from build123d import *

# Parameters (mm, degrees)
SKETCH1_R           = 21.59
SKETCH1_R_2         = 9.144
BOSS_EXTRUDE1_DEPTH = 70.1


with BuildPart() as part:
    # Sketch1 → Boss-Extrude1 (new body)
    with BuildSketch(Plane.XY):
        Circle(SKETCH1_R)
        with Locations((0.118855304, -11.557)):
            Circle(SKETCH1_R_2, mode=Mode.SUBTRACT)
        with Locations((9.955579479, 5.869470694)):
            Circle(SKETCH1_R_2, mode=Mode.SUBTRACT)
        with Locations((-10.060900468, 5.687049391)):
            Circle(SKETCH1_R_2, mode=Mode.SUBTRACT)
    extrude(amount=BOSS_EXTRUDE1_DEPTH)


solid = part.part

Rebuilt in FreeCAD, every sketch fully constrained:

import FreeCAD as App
import Part
import Sketcher
Q = App.Units.Quantity

doc = App.newDocument("Part")
body = doc.addObject("PartDesign::Body", "Body")

# Sketch on XY plane
sketch1 = body.newObject("Sketcher::SketchObject", "Sketch")
sketch1.AttachmentSupport = (doc.getObject("XY_Plane"), [""])
sketch1.MapMode = "FlatFace"
sketch1.addGeometry([
    Part.Circle(App.Vector(0, 0, 0), App.Vector(0, 0, 1), 21.59),
    Part.Circle(App.Vector(0.118855, -11.557, 0), App.Vector(0, 0, 1), 9.144),
    Part.Circle(App.Vector(-10.0609, 5.687049, 0), App.Vector(0, 0, 1), 9.144),
    Part.Circle(App.Vector(9.955579, 5.869471, 0), App.Vector(0, 0, 1), 9.144),
], False)
sketch1.addConstraint([
    Sketcher.Constraint("Coincident", 0, 3, -1, 1),
    Sketcher.Constraint("Equal", 1, 2),
    Sketcher.Constraint("Equal", 2, 3),
    Sketcher.Constraint("Diameter", 0, Q("1.7 in")),
    Sketcher.Constraint("Diameter", 1, Q("0.72 in")),
    Sketcher.Constraint("DistanceY", 1, 3, -1, 1, Q("0.455 in")),
    Sketcher.Constraint("DistanceX", 2, 3, -1, 1, Q("10.0609 mm")),
    Sketcher.Constraint("DistanceY", -1, 1, 2, 3, Q("5.687049 mm")),
    Sketcher.Constraint("DistanceX", -1, 1, 3, 3, Q("9.955579 mm")),
    Sketcher.Constraint("DistanceY", -1, 1, 3, 3, Q("5.869471 mm")),
    Sketcher.Constraint("DistanceX", -1, 1, 1, 3, Q("0.118855 mm")),
])
pad1 = body.newObject("PartDesign::Pad", "Pad")
pad1.Profile = sketch1
pad1.Length = 70.1

doc.recompute()
